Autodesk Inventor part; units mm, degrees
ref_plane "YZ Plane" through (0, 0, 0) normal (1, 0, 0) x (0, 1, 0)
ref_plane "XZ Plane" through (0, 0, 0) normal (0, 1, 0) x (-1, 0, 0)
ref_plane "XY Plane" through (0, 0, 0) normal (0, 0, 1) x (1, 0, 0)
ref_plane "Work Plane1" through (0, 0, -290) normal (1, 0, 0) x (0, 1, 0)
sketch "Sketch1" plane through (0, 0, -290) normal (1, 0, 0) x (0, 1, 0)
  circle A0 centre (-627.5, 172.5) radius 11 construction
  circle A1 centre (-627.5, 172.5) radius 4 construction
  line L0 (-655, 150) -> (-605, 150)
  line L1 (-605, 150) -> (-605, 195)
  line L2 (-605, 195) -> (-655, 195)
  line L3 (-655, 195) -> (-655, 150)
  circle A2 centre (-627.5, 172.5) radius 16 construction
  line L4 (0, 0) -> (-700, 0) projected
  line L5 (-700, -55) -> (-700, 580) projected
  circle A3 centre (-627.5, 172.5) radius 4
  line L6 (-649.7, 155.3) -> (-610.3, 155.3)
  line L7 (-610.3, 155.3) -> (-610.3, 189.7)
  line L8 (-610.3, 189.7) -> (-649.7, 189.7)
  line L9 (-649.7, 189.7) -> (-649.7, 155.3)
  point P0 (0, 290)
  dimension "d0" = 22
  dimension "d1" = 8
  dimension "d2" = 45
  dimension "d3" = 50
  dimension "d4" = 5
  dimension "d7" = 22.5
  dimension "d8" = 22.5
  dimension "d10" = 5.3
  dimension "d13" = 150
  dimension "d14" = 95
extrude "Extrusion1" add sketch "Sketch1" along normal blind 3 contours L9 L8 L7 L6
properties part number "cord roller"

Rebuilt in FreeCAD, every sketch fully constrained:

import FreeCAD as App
import Part
import Sketcher


def add_polygon(sketch, points):
    """Adds a closed chain of lines whose ends are joined by coincident constraints."""
    first, n = sketch.GeometryCount, len(points)
    for a, b in zip(points, points[1:] + points[:1]):
        sketch.addGeometry(Part.LineSegment(App.Vector(*a, 0), App.Vector(*b, 0)), False)
    for i in range(n):
        sketch.addConstraint(Sketcher.Constraint("Coincident", first + i, 2, first + (i + 1) % n, 1))

doc = App.newDocument("Part")
body = doc.addObject("PartDesign::Body", "Body")

# Sketch on YZ plane
sketch1 = body.newObject("Sketcher::SketchObject", "Sketch")
sketch1.AttachmentSupport = (doc.getObject("YZ_Plane"), [""])
sketch1.MapMode = "FlatFace"
add_polygon(sketch1, [(-649.7, -100.3), (-649.7, -134.7), (-610.3, -134.7), (-610.3, -100.3)])  # lines 0-3
sketch1.addGeometry(Part.Circle(App.Vector(-627.5, -117.5, 0), App.Vector(0, 0, 1), 4), False)  # 4
sketch1.addConstraint(Sketcher.Constraint("Vertical", 0))
sketch1.addConstraint(Sketcher.Constraint("Horizontal", 1))
sketch1.addConstraint(Sketcher.Constraint("Vertical", 2))
sketch1.addConstraint(Sketcher.Constraint("Horizontal", 3))
sketch1.addConstraint(Sketcher.Constraint("Diameter", 4, 8.0))
sketch1.addConstraint(Sketcher.Constraint("DistanceX", 1, 1, 1, 2, 39.4))
sketch1.addConstraint(Sketcher.Constraint("DistanceY", 0, 2, 0, 1, 34.4))
sketch1.addConstraint(Sketcher.Constraint("DistanceX", 4, 3, -1, 1, 627.5))
sketch1.addConstraint(Sketcher.Constraint("DistanceY", 4, 3, -1, 1, 117.5))
sketch1.addConstraint(Sketcher.Constraint("DistanceX", 0, 2, -1, 1, 649.7))
sketch1.addConstraint(Sketcher.Constraint("DistanceY", 0, 2, -1, 1, 134.7))
pad1 = body.newObject("PartDesign::Pad", "Pad")
pad1.Profile = sketch1
pad1.Length = 3

doc.recompute()
